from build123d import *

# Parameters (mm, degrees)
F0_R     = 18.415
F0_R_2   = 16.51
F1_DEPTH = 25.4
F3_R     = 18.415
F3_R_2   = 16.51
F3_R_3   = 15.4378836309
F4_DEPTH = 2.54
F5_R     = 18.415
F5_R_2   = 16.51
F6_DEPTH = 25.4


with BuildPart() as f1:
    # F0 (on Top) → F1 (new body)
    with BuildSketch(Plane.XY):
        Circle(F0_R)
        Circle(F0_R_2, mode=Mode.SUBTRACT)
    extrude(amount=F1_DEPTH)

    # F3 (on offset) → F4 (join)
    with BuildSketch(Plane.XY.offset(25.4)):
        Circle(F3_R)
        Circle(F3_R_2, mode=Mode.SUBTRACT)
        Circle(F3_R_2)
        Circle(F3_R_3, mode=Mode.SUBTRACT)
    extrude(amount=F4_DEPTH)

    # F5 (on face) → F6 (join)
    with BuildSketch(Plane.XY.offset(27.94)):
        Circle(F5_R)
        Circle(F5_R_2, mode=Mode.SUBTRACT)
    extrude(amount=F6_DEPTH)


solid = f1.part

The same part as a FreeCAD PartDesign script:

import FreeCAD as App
import Part
import Sketcher
from FreeCAD import Vector
Q = App.Units.Quantity

doc = App.newDocument("Part")
params = doc.addObject("Spreadsheet::Sheet", "Params")
for row, (alias, value) in enumerate([
    ("sketch1_diameter", "1.3 in"),
    ("sketch1_diameter2", "1.45 in"),
    ("pad1_length", "1 in"),
    ("sketch2_diameter", "1.45 in"),
    ("pad2_length", "0.1 in"),
    ("sketch3_diameter", "1.3 in"),
    ("sketch3_diameter2", "1.45 in"),
    ("pad3_length", "1 in"),
], start=1):
    params.set(f"A{row}", alias)
    params.set(f"B{row}", "=" + value)
    params.setAlias(f"B{row}", alias)

body = doc.addObject("PartDesign::Body", "Body")

sketch1 = body.newObject("Sketcher::SketchObject", "Sketch")
sketch1.AttachmentSupport = (doc.getObject("XY_Plane"), [""])
sketch1.MapMode = "FlatFace"
sketch1.addGeometry(Part.Circle(Vector(0, 0, 0), Vector(0, 0, 1), 18), False)
sketch1.addGeometry(Part.Circle(Vector(0, 0, 0), Vector(0, 0, 1), 17), False)
sketch1.addConstraint(Sketcher.Constraint("Coincident", 0, 3, -1, 1))
sketch1.addConstraint(Sketcher.Constraint("Coincident", 1, 3, -1, 1))
sketch1.addConstraint(Sketcher.Constraint("Diameter", 1, Q("1.3 in")))
sketch1.addConstraint(Sketcher.Constraint("Diameter", 0, Q("1.45 in")))
sketch1.setExpression("Constraints[2]", "Params.sketch1_diameter")
sketch1.setExpression("Constraints[3]", "Params.sketch1_diameter2")
pad1 = body.newObject("PartDesign::Pad", "Pad")
pad1.Profile = sketch1
pad1.setExpression("Length", "Params.pad1_length")

sketch2 = body.newObject("Sketcher::SketchObject", "Sketch001")
sketch2.AttachmentSupport = (doc.getObject("XY_Plane"), [""])
sketch2.MapMode = "FlatFace"
sketch2.AttachmentOffset = App.Placement(Vector(0, 0, 1 * 25.4), App.Rotation())
sketch2.addGeometry(Part.Circle(Vector(0, 0, 0), Vector(0, 0, 1), 18), False)
sketch2.addGeometry(Part.Circle(Vector(0, 0, 0), Vector(0, 0, 1), 15), False)
sketch2.addConstraint(Sketcher.Constraint("Coincident", 0, 3, -1, 1))
sketch2.addConstraint(Sketcher.Constraint("Coincident", 1, 3, -1, 1))
sketch2.addConstraint(Sketcher.Constraint("Diameter", 0, Q("1.45 in")))
sketch2.addConstraint(Sketcher.Constraint("Diameter", 1, Q("30.875767 mm")))
sketch2.setExpression("Constraints[2]", "Params.sketch2_diameter")
pad2 = body.newObject("PartDesign::Pad", "Pad001")
pad2.Profile = sketch2
pad2.setExpression("Length", "Params.pad2_length")

sketch3 = body.newObject("Sketcher::SketchObject", "Sketch002")
sketch3.AttachmentSupport = (doc.getObject("XY_Plane"), [""])
sketch3.MapMode = "FlatFace"
sketch3.AttachmentOffset = App.Placement(Vector(0, 0, 1.1 * 25.4), App.Rotation())
sketch3.addGeometry(Part.Circle(Vector(0, 0, 0), Vector(0, 0, 1), 18), False)
sketch3.addGeometry(Part.Circle(Vector(0, 0, 0), Vector(0, 0, 1), 17), False)
sketch3.addConstraint(Sketcher.Constraint("Coincident", 0, 3, -1, 1))
sketch3.addConstraint(Sketcher.Constraint("Coincident", 1, 3, -1, 1))
sketch3.addConstraint(Sketcher.Constraint("Diameter", 1, Q("1.3 in")))
sketch3.addConstraint(Sketcher.Constraint("Diameter", 0, Q("1.45 in")))
sketch3.setExpression("Constraints[2]", "Params.sketch3_diameter")
sketch3.setExpression("Constraints[3]", "Params.sketch3_diameter2")
pad3 = body.newObject("PartDesign::Pad", "Pad002")
pad3.Profile = sketch3
pad3.setExpression("Length", "Params.pad3_length")

doc.recompute()
